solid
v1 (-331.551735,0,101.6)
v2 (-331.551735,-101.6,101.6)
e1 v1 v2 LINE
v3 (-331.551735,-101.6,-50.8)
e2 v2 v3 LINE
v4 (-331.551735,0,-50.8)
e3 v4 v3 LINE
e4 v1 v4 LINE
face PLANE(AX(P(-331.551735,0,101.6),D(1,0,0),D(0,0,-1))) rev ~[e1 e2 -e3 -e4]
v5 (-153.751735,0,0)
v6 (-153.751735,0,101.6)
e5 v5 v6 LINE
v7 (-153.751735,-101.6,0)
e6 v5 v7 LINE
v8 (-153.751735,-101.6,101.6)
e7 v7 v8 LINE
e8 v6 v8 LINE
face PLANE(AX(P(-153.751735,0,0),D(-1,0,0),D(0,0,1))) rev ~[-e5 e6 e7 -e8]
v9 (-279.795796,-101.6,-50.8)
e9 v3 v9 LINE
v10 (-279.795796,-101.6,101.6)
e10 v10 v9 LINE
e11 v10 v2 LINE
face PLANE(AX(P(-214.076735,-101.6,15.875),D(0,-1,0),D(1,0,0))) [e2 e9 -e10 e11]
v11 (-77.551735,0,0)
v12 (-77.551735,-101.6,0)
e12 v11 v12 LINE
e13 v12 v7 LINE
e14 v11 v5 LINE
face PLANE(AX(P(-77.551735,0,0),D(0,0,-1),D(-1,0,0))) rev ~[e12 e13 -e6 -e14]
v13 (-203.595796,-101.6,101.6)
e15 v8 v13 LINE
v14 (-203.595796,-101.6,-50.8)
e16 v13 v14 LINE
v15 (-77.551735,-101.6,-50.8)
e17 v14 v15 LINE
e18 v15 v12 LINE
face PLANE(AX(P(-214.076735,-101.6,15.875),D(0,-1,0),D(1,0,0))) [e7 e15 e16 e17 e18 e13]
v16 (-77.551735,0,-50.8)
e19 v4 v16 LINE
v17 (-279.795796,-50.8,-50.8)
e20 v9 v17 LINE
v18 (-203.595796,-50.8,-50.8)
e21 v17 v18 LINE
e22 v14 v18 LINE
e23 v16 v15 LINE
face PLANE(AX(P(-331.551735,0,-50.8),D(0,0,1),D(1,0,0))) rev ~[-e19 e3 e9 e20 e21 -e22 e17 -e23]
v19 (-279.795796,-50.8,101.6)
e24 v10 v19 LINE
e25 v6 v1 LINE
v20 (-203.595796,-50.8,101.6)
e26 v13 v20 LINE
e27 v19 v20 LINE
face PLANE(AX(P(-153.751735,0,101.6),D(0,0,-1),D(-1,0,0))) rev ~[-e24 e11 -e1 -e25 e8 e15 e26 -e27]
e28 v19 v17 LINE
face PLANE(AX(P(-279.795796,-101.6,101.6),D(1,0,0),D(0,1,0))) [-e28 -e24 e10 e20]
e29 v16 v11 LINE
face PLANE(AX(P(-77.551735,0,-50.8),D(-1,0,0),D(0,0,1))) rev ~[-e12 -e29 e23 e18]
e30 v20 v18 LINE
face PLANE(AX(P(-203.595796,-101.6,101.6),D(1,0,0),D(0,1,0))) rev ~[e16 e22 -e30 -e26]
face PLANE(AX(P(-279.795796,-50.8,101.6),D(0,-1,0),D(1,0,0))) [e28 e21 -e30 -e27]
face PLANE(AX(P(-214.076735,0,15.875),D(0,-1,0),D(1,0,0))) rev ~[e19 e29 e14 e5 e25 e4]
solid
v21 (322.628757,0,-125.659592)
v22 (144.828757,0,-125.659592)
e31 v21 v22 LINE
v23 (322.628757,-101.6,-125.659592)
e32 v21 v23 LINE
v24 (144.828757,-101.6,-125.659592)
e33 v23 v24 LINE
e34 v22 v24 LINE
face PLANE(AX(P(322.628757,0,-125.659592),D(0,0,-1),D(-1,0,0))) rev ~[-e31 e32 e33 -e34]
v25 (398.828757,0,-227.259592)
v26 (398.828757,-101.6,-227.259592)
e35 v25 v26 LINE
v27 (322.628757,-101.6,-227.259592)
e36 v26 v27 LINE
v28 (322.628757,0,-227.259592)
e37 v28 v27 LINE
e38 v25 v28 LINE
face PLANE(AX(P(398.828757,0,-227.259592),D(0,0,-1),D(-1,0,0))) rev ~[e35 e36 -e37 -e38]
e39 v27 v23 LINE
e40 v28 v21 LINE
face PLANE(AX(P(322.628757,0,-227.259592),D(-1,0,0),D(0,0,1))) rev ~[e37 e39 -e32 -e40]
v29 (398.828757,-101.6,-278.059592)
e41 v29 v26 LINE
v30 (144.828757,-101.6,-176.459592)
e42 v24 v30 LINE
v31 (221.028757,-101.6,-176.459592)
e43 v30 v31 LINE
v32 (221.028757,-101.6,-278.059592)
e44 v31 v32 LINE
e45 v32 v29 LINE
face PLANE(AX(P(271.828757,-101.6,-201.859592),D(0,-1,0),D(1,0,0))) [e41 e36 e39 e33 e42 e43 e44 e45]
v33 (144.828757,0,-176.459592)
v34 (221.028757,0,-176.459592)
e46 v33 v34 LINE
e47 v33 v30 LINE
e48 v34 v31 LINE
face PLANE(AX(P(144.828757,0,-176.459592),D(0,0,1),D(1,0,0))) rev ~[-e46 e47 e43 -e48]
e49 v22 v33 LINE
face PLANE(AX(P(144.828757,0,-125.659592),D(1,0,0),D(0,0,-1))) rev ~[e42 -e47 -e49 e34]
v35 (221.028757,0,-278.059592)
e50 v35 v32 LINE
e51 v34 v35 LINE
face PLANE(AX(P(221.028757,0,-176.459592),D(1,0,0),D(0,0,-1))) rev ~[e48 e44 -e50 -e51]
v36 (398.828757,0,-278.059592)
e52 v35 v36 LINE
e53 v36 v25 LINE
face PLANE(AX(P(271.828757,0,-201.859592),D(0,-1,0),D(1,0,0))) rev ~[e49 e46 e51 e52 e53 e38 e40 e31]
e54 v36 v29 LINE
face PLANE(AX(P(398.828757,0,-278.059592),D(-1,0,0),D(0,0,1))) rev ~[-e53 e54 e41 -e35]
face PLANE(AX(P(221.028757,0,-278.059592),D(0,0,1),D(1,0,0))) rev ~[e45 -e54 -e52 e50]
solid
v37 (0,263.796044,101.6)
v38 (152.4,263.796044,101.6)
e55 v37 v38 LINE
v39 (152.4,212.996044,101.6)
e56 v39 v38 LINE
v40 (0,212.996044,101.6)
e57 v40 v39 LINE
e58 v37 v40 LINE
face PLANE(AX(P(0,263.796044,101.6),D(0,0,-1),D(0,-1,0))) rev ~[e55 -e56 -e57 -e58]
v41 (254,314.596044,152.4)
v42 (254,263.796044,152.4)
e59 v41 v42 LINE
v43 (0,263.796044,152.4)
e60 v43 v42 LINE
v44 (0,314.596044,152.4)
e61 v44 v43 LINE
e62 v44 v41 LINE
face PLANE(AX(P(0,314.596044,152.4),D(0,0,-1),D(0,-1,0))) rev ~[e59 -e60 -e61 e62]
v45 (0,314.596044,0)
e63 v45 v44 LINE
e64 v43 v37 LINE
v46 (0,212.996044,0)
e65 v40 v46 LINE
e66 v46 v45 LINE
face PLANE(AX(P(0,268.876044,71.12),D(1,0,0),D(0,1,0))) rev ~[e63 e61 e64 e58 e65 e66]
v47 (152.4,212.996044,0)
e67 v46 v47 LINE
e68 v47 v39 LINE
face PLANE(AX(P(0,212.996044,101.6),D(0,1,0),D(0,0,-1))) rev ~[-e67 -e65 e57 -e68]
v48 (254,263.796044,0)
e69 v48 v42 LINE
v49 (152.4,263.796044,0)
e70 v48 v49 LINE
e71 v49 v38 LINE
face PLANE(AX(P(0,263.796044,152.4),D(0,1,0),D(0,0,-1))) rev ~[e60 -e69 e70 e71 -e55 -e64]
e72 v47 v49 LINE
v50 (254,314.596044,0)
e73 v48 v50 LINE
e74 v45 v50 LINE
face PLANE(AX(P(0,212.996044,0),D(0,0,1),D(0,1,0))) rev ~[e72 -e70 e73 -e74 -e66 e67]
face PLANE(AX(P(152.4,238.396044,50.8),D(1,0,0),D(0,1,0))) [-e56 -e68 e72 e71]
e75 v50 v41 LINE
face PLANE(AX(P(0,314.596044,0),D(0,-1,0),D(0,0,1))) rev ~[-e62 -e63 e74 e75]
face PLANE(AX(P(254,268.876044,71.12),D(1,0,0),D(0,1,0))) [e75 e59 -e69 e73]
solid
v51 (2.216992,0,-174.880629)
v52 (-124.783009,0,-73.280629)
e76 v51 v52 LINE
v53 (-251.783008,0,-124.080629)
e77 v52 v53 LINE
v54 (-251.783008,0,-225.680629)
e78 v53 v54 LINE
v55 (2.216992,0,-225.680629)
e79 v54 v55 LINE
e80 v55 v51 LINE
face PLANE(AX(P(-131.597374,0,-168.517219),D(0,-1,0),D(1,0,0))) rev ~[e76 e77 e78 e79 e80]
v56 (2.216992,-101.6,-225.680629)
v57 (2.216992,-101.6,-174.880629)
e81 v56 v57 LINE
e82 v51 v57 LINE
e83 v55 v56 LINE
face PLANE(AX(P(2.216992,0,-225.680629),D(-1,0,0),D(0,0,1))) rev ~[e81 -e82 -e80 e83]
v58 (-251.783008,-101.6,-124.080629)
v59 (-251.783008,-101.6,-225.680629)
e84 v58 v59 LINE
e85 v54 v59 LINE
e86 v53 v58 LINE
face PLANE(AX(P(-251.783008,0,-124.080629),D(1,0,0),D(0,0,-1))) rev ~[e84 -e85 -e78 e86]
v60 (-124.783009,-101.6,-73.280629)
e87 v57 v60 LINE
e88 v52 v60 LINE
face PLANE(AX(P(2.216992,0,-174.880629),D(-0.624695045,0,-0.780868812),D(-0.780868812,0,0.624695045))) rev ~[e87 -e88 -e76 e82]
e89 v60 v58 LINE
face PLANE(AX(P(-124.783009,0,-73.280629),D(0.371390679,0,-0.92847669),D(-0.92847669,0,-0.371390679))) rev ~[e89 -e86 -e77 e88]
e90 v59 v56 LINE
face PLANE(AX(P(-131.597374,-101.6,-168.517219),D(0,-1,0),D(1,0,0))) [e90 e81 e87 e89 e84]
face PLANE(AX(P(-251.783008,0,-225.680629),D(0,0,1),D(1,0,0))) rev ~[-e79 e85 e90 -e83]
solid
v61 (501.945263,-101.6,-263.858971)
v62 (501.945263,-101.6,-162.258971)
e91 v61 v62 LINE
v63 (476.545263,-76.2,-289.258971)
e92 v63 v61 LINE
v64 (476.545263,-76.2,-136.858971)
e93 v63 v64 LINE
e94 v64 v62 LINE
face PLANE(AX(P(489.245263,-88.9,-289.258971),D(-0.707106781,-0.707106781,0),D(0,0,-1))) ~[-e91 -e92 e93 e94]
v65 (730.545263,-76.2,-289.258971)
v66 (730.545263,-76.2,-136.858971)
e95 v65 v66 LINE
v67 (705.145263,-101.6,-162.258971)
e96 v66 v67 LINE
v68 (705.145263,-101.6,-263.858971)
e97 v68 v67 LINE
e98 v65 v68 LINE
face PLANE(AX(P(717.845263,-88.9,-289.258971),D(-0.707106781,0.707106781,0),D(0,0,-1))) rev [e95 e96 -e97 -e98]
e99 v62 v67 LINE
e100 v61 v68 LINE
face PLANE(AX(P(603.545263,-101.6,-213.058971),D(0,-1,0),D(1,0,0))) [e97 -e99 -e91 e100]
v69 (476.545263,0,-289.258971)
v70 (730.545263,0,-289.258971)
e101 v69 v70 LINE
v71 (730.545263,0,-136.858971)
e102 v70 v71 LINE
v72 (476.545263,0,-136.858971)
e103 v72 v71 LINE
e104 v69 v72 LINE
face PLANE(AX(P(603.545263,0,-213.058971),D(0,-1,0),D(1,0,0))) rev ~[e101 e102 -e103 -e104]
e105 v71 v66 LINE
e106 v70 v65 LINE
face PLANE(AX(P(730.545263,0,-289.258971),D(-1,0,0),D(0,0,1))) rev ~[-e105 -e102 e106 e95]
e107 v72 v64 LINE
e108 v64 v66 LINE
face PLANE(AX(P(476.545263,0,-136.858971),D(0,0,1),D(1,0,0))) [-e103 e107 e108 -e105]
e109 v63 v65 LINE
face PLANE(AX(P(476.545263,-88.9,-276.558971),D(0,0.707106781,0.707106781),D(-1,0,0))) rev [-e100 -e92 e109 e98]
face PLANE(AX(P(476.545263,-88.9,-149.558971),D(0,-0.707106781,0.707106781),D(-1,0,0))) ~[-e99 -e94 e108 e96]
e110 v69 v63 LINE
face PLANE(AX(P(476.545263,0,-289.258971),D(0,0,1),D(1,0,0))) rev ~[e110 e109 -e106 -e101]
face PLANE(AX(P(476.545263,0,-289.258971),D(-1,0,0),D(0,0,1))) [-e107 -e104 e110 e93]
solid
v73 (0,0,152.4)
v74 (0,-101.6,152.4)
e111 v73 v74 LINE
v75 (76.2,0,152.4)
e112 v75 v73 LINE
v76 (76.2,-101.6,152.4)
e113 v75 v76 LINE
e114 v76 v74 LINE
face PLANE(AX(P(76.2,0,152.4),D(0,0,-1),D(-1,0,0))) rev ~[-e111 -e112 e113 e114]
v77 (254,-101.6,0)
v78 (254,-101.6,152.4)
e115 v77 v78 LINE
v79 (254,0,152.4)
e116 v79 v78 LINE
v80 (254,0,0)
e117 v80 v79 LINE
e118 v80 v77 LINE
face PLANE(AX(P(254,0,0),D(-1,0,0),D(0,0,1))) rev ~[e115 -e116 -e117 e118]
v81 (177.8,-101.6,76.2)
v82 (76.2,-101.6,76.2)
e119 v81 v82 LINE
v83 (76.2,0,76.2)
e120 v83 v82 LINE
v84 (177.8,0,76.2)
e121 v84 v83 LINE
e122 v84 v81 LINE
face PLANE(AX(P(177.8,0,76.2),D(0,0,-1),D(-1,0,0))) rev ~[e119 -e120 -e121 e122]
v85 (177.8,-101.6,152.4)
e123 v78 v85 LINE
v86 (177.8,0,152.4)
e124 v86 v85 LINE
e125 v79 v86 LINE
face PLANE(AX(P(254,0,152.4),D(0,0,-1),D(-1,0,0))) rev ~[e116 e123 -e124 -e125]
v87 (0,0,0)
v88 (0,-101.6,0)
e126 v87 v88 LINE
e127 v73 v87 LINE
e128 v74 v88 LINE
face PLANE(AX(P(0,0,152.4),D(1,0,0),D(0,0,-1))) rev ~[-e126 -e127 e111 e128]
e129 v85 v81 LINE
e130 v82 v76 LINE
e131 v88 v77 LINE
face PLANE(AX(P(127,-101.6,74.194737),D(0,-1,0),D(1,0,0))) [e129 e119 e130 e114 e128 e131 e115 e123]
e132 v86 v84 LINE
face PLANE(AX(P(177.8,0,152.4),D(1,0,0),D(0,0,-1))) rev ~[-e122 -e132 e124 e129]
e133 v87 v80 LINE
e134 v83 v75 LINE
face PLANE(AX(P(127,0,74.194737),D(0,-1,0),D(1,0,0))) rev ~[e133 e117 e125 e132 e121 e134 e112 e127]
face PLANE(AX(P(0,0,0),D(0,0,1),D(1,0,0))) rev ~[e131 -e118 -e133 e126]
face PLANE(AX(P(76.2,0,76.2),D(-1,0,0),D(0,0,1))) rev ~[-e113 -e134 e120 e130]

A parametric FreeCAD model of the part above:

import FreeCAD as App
import Part
import Sketcher
from FreeCAD import Vector
Q = App.Units.Quantity


def edges_at(feature, points):
    """Names of the edges that pass closest to the given points."""
    edges = feature.Shape.Edges
    near = lambda p: min(range(len(edges)), key=lambda i: edges[i].distToShape(Part.Vertex(*p))[0])
    return sorted({f"Edge{near(p) + 1}" for p in points})


def add_polygon(sketch, points):
    """Adds a closed chain of lines whose ends are joined by coincident constraints."""
    first, n = sketch.GeometryCount, len(points)
    for a, b in zip(points, points[1:] + points[:1]):
        sketch.addGeometry(Part.LineSegment(App.Vector(*a, 0), App.Vector(*b, 0)), False)
    for i in range(n):
        sketch.addConstraint(Sketcher.Constraint("Coincident", first + i, 2, first + (i + 1) % n, 1))

doc = App.newDocument("Part")
params = doc.addObject("Spreadsheet::Sheet", "Params")
for row, (alias, value) in enumerate([
    ("sketch1_width", "10 in"),
    ("sketch1_width2", "3 in"),
    ("sketch1_height", "6 in"),
    ("pad1_length", "4 in"),
    ("sketch2_width", "4 in"),
    ("pad2_length", "10 in"),
    ("sketch3_width", "2 in"),
    ("sketch3_height", "4 in"),
    ("pocket1_length", "4 in"),
    ("sketch4_width", "10 in"),
    ("sketch4_width2", "3 in"),
    ("sketch4_height", "6 in"),
    ("sketch4_height2", "2 in"),
    ("pad3_length", "4 in"),
    ("sketch5_width", "3 in"),
    ("sketch5_height", "2 in"),
    ("pocket2_length", "6 in"),
    ("sketch6_width", "7 in"),
    ("sketch6_width2", "3 in"),
    ("sketch6_height", "2 in"),
    ("sketch6_height2", "4 in"),
    ("pad4_length", "4 in"),
    ("sketch7_width", "10 in"),
    ("sketch7_height", "4 in"),
    ("sketch7_height2", "2 in"),
    ("pad5_length", "4 in"),
    ("sketch8_width", "10 in"),
    ("sketch8_height", "6 in"),
    ("pad6_length", "4 in"),
    ("chamfer_size", "1 in"),
], start=1):
    params.set(f"A{row}", alias)
    params.set(f"B{row}", "=" + value)
    params.setAlias(f"B{row}", alias)

body = doc.addObject("PartDesign::Body", "Body")

# Sketch on XZ plane
sketch1 = body.newObject("Sketcher::SketchObject", "Sketch")
sketch1.AttachmentSupport = (doc.getObject("XZ_Plane"), [""])
sketch1.MapMode = "FlatFace"
add_polygon(sketch1, [(0, 152), (0, 0), (254, 0), (254, 152), (178, 152), (178, 76), (76, 76), (76, 152)])  # lines 0-7
sketch1.addConstraint([
    Sketcher.Constraint("Vertical", 0),
    Sketcher.Constraint("Horizontal", 1),
    Sketcher.Constraint("Vertical", 2),
    Sketcher.Constraint("Horizontal", 3),
    Sketcher.Constraint("Vertical", 4),
    Sketcher.Constraint("Horizontal", 5),
    Sketcher.Constraint("Vertical", 6),
    Sketcher.Constraint("Horizontal", 7),
    Sketcher.Constraint("Coincident", 0, 2, -1, 1),
    Sketcher.Constraint("Horizontal", 3, 2, 6, 2),
    Sketcher.Constraint("Equal", 3, 7),
    Sketcher.Constraint("Equal", 7, 4),
    Sketcher.Constraint("DistanceX", 1, 1, 1, 2, Q("10 in")),
    Sketcher.Constraint("DistanceX", 3, 2, 3, 1, Q("3 in")),
    Sketcher.Constraint("DistanceY", 0, 2, 0, 1, Q("6 in")),
])
sketch1.setExpression("Constraints[20]", "Params.sketch1_width")
sketch1.setExpression("Constraints[21]", "Params.sketch1_width2")
sketch1.setExpression("Constraints[22]", "Params.sketch1_height")
pad1 = body.newObject("PartDesign::Pad", "Pad")
pad1.Profile = sketch1
pad1.setExpression("Length", "Params.pad1_length")
body2 = doc.addObject("PartDesign::Body", "Body001")

# Sketch on YZ plane
sketch2 = body2.newObject("Sketcher::SketchObject", "Sketch001")
sketch2.AttachmentSupport = (doc.getObject("YZ_Plane001"), [""])
sketch2.MapMode = "FlatFace"
add_polygon(sketch2, [(213, 102), (213, 0), (315, 0), (315, 152), (264, 152), (264, 102)])  # lines 0-5
sketch2.addConstraint([
    Sketcher.Constraint("Vertical", 0),
    Sketcher.Constraint("Horizontal", 1),
    Sketcher.Constraint("Vertical", 2),
    Sketcher.Constraint("Horizontal", 3),
    Sketcher.Constraint("Vertical", 4),
    Sketcher.Constraint("Horizontal", 5),
    Sketcher.Constraint("PointOnObject", 0, 2, -1),
    Sketcher.Constraint("Equal", 3, 5),
    Sketcher.Constraint("Equal", 1, 0),
    Sketcher.Constraint("Equal", 5, 4),
    Sketcher.Constraint("DistanceX", 1, 1, 1, 2, Q("4 in")),
    Sketcher.Constraint("DistanceX", -1, 1, 0, 2, 212.996044),
])
sketch2.setExpression("Constraints[16]", "Params.sketch2_width")
pad2 = body2.newObject("PartDesign::Pad", "Pad001")
pad2.Profile = sketch2
pad2.setExpression("Length", "Params.pad2_length")

# Sketch on YZ plane
sketch3 = body2.newObject("Sketcher::SketchObject", "Sketch002")
sketch3.AttachmentSupport = (doc.getObject("YZ_Plane001"), [""])
sketch3.MapMode = "FlatFace"
sketch3.AttachmentOffset = App.Placement(Vector(0, 0, 10 * 25.4), App.Rotation())
add_polygon(sketch3, [(213, 102), (213, 0), (264, 0), (264, 102)])  # lines 0-3
sketch3.addConstraint([
    Sketcher.Constraint("Vertical", 0),
    Sketcher.Constraint("Horizontal", 1),
    Sketcher.Constraint("Vertical", 2),
    Sketcher.Constraint("Horizontal", 3),
    Sketcher.Constraint("PointOnObject", 0, 2, -1),
    Sketcher.Constraint("DistanceX", 1, 1, 1, 2, Q("2 in")),
    Sketcher.Constraint("DistanceY", 0, 2, 0, 1, Q("4 in")),
    Sketcher.Constraint("DistanceX", -1, 1, 0, 2, 212.996044),
])
sketch3.setExpression("Constraints[9]", "Params.sketch3_width")
sketch3.setExpression("Constraints[10]", "Params.sketch3_height")
pocket1 = body2.newObject("PartDesign::Pocket", "Pocket")
pocket1.Profile = sketch3
pocket1.setExpression("Length", "Params.pocket1_length")
body3 = doc.addObject("PartDesign::Body", "Body002")

# Sketch on XZ plane
sketch4 = body3.newObject("Sketcher::SketchObject", "Sketch003")
sketch4.AttachmentSupport = (doc.getObject("XZ_Plane002"), [""])
sketch4.MapMode = "FlatFace"
add_polygon(sketch4, [(-332, 102), (-332, -51), (-78, -51), (-78, 0), (-154, 0), (-154, 102)])  # lines 0-5
sketch4.addConstraint([
    Sketcher.Constraint("Vertical", 0),
    Sketcher.Constraint("Horizontal", 1),
    Sketcher.Constraint("Vertical", 2),
    Sketcher.Constraint("Horizontal", 3),
    Sketcher.Constraint("Vertical", 4),
    Sketcher.Constraint("Horizontal", 5),
    Sketcher.Constraint("PointOnObject", 2, 2, -1),
    Sketcher.Constraint("DistanceX", 1, 1, 1, 2, Q("10 in")),
    Sketcher.Constraint("DistanceX", 3, 2, 3, 1, Q("3 in")),
    Sketcher.Constraint("DistanceY", 0, 2, 0, 1, Q("6 in")),
    Sketcher.Constraint("DistanceY", 2, 1, 2, 2, Q("2 in")),
    Sketcher.Constraint("DistanceX", 0, 2, -1, 1, 331.551735),
])
sketch4.setExpression("Constraints[13]", "Params.sketch4_width")
sketch4.setExpression("Constraints[14]", "Params.sketch4_width2")
sketch4.setExpression("Constraints[15]", "Params.sketch4_height")
sketch4.setExpression("Constraints[16]", "Params.sketch4_height2")
pad3 = body3.newObject("PartDesign::Pad", "Pad002")
pad3.Profile = sketch4
pad3.setExpression("Length", "Params.pad3_length")

# Sketch on XY plane
sketch5 = body3.newObject("Sketcher::SketchObject", "Sketch004")
sketch5.AttachmentSupport = (doc.getObject("XY_Plane002"), [""])
sketch5.MapMode = "FlatFace"
sketch5.AttachmentOffset = App.Placement(Vector(0, 0, 4 * 25.4), App.Rotation())
add_polygon(sketch5, [(-280, -51), (-280, -102), (-204, -102), (-204, -51)])  # lines 0-3
sketch5.addConstraint([
    Sketcher.Constraint("Vertical", 0),
    Sketcher.Constraint("Horizontal", 1),
    Sketcher.Constraint("Vertical", 2),
    Sketcher.Constraint("Horizontal", 3),
    Sketcher.Constraint("DistanceX", 1, 1, 1, 2, Q("3 in")),
    Sketcher.Constraint("DistanceY", 0, 2, 0, 1, Q("2 in")),
    Sketcher.Constraint("DistanceY", 0, 2, -1, 1, Q("4 in")),
    Sketcher.Constraint("DistanceX", 0, 2, -1, 1, 279.795796),
])
sketch5.setExpression("Constraints[8]", "Params.sketch5_width")
sketch5.setExpression("Constraints[9]", "Params.sketch5_height")
pocket2 = body3.newObject("PartDesign::Pocket", "Pocket001")
pocket2.Profile = sketch5
pocket2.setExpression("Length", "Params.pocket2_length")
body4 = doc.addObject("PartDesign::Body", "Body003")

# Sketch on XZ plane
sketch6 = body4.newObject("Sketcher::SketchObject", "Sketch005")
sketch6.AttachmentSupport = (doc.getObject("XZ_Plane003"), [""])
sketch6.MapMode = "FlatFace"
add_polygon(sketch6, [(323, -126), (145, -126), (145, -176), (221, -176), (221, -278), (399, -278), (399, -227), (323, -227)])  # lines 0-7
sketch6.addConstraint([
    Sketcher.Constraint("Horizontal", 0),
    Sketcher.Constraint("Vertical", 1),
    Sketcher.Constraint("Horizontal", 2),
    Sketcher.Constraint("Vertical", 3),
    Sketcher.Constraint("Horizontal", 4),
    Sketcher.Constraint("Vertical", 5),
    Sketcher.Constraint("Horizontal", 6),
    Sketcher.Constraint("Vertical", 7),
    Sketcher.Constraint("Equal", 0, 4),
    Sketcher.Constraint("Equal", 1, 5),
    Sketcher.Constraint("DistanceX", 0, 2, 0, 1, Q("7 in")),
    Sketcher.Constraint("DistanceX", 2, 1, 2, 2, Q("3 in")),
    Sketcher.Constraint("DistanceY", 1, 2, 1, 1, Q("2 in")),
    Sketcher.Constraint("DistanceY", 3, 2, 3, 1, Q("4 in")),
    Sketcher.Constraint("DistanceY", 1, 2, -1, 1, 176.459592),
    Sketcher.Constraint("DistanceX", -1, 1, 0, 2, 144.828757),
])
sketch6.setExpression("Constraints[18]", "Params.sketch6_width")
sketch6.setExpression("Constraints[19]", "Params.sketch6_width2")
sketch6.setExpression("Constraints[20]", "Params.sketch6_height")
sketch6.setExpression("Constraints[21]", "Params.sketch6_height2")
pad4 = body4.newObject("PartDesign::Pad", "Pad003")
pad4.Profile = sketch6
pad4.setExpression("Length", "Params.pad4_length")
body5 = doc.addObject("PartDesign::Body", "Body004")

# Sketch on XZ plane
sketch7 = body5.newObject("Sketcher::SketchObject", "Sketch006")
sketch7.AttachmentSupport = (doc.getObject("XZ_Plane004"), [""])
sketch7.MapMode = "FlatFace"
add_polygon(sketch7, [(-125, -73), (-252, -124), (-252, -226), (2, -226), (2, -175)])  # lines 0-4
sketch7.addConstraint([
    Sketcher.Constraint("Vertical", 1),
    Sketcher.Constraint("Horizontal", 2),
    Sketcher.Constraint("Vertical", 3),
    Sketcher.Constraint("DistanceX", 2, 1, 2, 2, Q("10 in")),
    Sketcher.Constraint("DistanceY", 1, 2, 1, 1, Q("4 in")),
    Sketcher.Constraint("DistanceY", 3, 1, 3, 2, Q("2 in")),
    Sketcher.Constraint("DistanceX", 0, 2, 4, 2, Q("5 in")),
    Sketcher.Constraint("DistanceY", 0, 2, 4, 2, Q("2 in")),
    Sketcher.Constraint("DistanceX", 0, 2, -1, 1, 251.783008),
    Sketcher.Constraint("DistanceY", 0, 2, -1, 1, 124.080629),
])
sketch7.setExpression("Constraints[8]", "Params.sketch7_width")
sketch7.setExpression("Constraints[9]", "Params.sketch7_height")
sketch7.setExpression("Constraints[10]", "Params.sketch7_height2")
pad5 = body5.newObject("PartDesign::Pad", "Pad004")
pad5.Profile = sketch7
pad5.setExpression("Length", "Params.pad5_length")
body6 = doc.addObject("PartDesign::Body", "Body005")

# Sketch on XZ plane
sketch8 = body6.newObject("Sketcher::SketchObject", "Sketch007")
sketch8.AttachmentSupport = (doc.getObject("XZ_Plane005"), [""])
sketch8.MapMode = "FlatFace"
add_polygon(sketch8, [(477, -137), (477, -289), (731, -289), (731, -137)])  # lines 0-3
sketch8.addConstraint([
    Sketcher.Constraint("Vertical", 0),
    Sketcher.Constraint("Horizontal", 1),
    Sketcher.Constraint("Vertical", 2),
    Sketcher.Constraint("Horizontal", 3),
    Sketcher.Constraint("DistanceX", 1, 1, 1, 2, Q("10 in")),
    Sketcher.Constraint("DistanceY", 0, 2, 0, 1, Q("6 in")),
    Sketcher.Constraint("DistanceY", 0, 2, -1, 1, 289.258971),
    Sketcher.Constraint("DistanceX", -1, 1, 0, 2, 476.545263),
])
sketch8.setExpression("Constraints[8]", "Params.sketch8_width")
sketch8.setExpression("Constraints[9]", "Params.sketch8_height")
pad6 = body6.newObject("PartDesign::Pad", "Pad005")
pad6.Profile = sketch8
pad6.setExpression("Length", "Params.pad6_length")
doc.recompute()

chamfer = body6.newObject("PartDesign::Chamfer", "Chamfer")
chamfer.Base = (pad6, edges_at(pad6, [
    (603.545, -101.6, -136.859),
    (476.545, -101.6, -213.059),
    (603.545, -101.6, -289.259),
    (730.545, -101.6, -213.059),
]))
chamfer.setExpression("Size", "Params.chamfer_size")

doc.recompute()
